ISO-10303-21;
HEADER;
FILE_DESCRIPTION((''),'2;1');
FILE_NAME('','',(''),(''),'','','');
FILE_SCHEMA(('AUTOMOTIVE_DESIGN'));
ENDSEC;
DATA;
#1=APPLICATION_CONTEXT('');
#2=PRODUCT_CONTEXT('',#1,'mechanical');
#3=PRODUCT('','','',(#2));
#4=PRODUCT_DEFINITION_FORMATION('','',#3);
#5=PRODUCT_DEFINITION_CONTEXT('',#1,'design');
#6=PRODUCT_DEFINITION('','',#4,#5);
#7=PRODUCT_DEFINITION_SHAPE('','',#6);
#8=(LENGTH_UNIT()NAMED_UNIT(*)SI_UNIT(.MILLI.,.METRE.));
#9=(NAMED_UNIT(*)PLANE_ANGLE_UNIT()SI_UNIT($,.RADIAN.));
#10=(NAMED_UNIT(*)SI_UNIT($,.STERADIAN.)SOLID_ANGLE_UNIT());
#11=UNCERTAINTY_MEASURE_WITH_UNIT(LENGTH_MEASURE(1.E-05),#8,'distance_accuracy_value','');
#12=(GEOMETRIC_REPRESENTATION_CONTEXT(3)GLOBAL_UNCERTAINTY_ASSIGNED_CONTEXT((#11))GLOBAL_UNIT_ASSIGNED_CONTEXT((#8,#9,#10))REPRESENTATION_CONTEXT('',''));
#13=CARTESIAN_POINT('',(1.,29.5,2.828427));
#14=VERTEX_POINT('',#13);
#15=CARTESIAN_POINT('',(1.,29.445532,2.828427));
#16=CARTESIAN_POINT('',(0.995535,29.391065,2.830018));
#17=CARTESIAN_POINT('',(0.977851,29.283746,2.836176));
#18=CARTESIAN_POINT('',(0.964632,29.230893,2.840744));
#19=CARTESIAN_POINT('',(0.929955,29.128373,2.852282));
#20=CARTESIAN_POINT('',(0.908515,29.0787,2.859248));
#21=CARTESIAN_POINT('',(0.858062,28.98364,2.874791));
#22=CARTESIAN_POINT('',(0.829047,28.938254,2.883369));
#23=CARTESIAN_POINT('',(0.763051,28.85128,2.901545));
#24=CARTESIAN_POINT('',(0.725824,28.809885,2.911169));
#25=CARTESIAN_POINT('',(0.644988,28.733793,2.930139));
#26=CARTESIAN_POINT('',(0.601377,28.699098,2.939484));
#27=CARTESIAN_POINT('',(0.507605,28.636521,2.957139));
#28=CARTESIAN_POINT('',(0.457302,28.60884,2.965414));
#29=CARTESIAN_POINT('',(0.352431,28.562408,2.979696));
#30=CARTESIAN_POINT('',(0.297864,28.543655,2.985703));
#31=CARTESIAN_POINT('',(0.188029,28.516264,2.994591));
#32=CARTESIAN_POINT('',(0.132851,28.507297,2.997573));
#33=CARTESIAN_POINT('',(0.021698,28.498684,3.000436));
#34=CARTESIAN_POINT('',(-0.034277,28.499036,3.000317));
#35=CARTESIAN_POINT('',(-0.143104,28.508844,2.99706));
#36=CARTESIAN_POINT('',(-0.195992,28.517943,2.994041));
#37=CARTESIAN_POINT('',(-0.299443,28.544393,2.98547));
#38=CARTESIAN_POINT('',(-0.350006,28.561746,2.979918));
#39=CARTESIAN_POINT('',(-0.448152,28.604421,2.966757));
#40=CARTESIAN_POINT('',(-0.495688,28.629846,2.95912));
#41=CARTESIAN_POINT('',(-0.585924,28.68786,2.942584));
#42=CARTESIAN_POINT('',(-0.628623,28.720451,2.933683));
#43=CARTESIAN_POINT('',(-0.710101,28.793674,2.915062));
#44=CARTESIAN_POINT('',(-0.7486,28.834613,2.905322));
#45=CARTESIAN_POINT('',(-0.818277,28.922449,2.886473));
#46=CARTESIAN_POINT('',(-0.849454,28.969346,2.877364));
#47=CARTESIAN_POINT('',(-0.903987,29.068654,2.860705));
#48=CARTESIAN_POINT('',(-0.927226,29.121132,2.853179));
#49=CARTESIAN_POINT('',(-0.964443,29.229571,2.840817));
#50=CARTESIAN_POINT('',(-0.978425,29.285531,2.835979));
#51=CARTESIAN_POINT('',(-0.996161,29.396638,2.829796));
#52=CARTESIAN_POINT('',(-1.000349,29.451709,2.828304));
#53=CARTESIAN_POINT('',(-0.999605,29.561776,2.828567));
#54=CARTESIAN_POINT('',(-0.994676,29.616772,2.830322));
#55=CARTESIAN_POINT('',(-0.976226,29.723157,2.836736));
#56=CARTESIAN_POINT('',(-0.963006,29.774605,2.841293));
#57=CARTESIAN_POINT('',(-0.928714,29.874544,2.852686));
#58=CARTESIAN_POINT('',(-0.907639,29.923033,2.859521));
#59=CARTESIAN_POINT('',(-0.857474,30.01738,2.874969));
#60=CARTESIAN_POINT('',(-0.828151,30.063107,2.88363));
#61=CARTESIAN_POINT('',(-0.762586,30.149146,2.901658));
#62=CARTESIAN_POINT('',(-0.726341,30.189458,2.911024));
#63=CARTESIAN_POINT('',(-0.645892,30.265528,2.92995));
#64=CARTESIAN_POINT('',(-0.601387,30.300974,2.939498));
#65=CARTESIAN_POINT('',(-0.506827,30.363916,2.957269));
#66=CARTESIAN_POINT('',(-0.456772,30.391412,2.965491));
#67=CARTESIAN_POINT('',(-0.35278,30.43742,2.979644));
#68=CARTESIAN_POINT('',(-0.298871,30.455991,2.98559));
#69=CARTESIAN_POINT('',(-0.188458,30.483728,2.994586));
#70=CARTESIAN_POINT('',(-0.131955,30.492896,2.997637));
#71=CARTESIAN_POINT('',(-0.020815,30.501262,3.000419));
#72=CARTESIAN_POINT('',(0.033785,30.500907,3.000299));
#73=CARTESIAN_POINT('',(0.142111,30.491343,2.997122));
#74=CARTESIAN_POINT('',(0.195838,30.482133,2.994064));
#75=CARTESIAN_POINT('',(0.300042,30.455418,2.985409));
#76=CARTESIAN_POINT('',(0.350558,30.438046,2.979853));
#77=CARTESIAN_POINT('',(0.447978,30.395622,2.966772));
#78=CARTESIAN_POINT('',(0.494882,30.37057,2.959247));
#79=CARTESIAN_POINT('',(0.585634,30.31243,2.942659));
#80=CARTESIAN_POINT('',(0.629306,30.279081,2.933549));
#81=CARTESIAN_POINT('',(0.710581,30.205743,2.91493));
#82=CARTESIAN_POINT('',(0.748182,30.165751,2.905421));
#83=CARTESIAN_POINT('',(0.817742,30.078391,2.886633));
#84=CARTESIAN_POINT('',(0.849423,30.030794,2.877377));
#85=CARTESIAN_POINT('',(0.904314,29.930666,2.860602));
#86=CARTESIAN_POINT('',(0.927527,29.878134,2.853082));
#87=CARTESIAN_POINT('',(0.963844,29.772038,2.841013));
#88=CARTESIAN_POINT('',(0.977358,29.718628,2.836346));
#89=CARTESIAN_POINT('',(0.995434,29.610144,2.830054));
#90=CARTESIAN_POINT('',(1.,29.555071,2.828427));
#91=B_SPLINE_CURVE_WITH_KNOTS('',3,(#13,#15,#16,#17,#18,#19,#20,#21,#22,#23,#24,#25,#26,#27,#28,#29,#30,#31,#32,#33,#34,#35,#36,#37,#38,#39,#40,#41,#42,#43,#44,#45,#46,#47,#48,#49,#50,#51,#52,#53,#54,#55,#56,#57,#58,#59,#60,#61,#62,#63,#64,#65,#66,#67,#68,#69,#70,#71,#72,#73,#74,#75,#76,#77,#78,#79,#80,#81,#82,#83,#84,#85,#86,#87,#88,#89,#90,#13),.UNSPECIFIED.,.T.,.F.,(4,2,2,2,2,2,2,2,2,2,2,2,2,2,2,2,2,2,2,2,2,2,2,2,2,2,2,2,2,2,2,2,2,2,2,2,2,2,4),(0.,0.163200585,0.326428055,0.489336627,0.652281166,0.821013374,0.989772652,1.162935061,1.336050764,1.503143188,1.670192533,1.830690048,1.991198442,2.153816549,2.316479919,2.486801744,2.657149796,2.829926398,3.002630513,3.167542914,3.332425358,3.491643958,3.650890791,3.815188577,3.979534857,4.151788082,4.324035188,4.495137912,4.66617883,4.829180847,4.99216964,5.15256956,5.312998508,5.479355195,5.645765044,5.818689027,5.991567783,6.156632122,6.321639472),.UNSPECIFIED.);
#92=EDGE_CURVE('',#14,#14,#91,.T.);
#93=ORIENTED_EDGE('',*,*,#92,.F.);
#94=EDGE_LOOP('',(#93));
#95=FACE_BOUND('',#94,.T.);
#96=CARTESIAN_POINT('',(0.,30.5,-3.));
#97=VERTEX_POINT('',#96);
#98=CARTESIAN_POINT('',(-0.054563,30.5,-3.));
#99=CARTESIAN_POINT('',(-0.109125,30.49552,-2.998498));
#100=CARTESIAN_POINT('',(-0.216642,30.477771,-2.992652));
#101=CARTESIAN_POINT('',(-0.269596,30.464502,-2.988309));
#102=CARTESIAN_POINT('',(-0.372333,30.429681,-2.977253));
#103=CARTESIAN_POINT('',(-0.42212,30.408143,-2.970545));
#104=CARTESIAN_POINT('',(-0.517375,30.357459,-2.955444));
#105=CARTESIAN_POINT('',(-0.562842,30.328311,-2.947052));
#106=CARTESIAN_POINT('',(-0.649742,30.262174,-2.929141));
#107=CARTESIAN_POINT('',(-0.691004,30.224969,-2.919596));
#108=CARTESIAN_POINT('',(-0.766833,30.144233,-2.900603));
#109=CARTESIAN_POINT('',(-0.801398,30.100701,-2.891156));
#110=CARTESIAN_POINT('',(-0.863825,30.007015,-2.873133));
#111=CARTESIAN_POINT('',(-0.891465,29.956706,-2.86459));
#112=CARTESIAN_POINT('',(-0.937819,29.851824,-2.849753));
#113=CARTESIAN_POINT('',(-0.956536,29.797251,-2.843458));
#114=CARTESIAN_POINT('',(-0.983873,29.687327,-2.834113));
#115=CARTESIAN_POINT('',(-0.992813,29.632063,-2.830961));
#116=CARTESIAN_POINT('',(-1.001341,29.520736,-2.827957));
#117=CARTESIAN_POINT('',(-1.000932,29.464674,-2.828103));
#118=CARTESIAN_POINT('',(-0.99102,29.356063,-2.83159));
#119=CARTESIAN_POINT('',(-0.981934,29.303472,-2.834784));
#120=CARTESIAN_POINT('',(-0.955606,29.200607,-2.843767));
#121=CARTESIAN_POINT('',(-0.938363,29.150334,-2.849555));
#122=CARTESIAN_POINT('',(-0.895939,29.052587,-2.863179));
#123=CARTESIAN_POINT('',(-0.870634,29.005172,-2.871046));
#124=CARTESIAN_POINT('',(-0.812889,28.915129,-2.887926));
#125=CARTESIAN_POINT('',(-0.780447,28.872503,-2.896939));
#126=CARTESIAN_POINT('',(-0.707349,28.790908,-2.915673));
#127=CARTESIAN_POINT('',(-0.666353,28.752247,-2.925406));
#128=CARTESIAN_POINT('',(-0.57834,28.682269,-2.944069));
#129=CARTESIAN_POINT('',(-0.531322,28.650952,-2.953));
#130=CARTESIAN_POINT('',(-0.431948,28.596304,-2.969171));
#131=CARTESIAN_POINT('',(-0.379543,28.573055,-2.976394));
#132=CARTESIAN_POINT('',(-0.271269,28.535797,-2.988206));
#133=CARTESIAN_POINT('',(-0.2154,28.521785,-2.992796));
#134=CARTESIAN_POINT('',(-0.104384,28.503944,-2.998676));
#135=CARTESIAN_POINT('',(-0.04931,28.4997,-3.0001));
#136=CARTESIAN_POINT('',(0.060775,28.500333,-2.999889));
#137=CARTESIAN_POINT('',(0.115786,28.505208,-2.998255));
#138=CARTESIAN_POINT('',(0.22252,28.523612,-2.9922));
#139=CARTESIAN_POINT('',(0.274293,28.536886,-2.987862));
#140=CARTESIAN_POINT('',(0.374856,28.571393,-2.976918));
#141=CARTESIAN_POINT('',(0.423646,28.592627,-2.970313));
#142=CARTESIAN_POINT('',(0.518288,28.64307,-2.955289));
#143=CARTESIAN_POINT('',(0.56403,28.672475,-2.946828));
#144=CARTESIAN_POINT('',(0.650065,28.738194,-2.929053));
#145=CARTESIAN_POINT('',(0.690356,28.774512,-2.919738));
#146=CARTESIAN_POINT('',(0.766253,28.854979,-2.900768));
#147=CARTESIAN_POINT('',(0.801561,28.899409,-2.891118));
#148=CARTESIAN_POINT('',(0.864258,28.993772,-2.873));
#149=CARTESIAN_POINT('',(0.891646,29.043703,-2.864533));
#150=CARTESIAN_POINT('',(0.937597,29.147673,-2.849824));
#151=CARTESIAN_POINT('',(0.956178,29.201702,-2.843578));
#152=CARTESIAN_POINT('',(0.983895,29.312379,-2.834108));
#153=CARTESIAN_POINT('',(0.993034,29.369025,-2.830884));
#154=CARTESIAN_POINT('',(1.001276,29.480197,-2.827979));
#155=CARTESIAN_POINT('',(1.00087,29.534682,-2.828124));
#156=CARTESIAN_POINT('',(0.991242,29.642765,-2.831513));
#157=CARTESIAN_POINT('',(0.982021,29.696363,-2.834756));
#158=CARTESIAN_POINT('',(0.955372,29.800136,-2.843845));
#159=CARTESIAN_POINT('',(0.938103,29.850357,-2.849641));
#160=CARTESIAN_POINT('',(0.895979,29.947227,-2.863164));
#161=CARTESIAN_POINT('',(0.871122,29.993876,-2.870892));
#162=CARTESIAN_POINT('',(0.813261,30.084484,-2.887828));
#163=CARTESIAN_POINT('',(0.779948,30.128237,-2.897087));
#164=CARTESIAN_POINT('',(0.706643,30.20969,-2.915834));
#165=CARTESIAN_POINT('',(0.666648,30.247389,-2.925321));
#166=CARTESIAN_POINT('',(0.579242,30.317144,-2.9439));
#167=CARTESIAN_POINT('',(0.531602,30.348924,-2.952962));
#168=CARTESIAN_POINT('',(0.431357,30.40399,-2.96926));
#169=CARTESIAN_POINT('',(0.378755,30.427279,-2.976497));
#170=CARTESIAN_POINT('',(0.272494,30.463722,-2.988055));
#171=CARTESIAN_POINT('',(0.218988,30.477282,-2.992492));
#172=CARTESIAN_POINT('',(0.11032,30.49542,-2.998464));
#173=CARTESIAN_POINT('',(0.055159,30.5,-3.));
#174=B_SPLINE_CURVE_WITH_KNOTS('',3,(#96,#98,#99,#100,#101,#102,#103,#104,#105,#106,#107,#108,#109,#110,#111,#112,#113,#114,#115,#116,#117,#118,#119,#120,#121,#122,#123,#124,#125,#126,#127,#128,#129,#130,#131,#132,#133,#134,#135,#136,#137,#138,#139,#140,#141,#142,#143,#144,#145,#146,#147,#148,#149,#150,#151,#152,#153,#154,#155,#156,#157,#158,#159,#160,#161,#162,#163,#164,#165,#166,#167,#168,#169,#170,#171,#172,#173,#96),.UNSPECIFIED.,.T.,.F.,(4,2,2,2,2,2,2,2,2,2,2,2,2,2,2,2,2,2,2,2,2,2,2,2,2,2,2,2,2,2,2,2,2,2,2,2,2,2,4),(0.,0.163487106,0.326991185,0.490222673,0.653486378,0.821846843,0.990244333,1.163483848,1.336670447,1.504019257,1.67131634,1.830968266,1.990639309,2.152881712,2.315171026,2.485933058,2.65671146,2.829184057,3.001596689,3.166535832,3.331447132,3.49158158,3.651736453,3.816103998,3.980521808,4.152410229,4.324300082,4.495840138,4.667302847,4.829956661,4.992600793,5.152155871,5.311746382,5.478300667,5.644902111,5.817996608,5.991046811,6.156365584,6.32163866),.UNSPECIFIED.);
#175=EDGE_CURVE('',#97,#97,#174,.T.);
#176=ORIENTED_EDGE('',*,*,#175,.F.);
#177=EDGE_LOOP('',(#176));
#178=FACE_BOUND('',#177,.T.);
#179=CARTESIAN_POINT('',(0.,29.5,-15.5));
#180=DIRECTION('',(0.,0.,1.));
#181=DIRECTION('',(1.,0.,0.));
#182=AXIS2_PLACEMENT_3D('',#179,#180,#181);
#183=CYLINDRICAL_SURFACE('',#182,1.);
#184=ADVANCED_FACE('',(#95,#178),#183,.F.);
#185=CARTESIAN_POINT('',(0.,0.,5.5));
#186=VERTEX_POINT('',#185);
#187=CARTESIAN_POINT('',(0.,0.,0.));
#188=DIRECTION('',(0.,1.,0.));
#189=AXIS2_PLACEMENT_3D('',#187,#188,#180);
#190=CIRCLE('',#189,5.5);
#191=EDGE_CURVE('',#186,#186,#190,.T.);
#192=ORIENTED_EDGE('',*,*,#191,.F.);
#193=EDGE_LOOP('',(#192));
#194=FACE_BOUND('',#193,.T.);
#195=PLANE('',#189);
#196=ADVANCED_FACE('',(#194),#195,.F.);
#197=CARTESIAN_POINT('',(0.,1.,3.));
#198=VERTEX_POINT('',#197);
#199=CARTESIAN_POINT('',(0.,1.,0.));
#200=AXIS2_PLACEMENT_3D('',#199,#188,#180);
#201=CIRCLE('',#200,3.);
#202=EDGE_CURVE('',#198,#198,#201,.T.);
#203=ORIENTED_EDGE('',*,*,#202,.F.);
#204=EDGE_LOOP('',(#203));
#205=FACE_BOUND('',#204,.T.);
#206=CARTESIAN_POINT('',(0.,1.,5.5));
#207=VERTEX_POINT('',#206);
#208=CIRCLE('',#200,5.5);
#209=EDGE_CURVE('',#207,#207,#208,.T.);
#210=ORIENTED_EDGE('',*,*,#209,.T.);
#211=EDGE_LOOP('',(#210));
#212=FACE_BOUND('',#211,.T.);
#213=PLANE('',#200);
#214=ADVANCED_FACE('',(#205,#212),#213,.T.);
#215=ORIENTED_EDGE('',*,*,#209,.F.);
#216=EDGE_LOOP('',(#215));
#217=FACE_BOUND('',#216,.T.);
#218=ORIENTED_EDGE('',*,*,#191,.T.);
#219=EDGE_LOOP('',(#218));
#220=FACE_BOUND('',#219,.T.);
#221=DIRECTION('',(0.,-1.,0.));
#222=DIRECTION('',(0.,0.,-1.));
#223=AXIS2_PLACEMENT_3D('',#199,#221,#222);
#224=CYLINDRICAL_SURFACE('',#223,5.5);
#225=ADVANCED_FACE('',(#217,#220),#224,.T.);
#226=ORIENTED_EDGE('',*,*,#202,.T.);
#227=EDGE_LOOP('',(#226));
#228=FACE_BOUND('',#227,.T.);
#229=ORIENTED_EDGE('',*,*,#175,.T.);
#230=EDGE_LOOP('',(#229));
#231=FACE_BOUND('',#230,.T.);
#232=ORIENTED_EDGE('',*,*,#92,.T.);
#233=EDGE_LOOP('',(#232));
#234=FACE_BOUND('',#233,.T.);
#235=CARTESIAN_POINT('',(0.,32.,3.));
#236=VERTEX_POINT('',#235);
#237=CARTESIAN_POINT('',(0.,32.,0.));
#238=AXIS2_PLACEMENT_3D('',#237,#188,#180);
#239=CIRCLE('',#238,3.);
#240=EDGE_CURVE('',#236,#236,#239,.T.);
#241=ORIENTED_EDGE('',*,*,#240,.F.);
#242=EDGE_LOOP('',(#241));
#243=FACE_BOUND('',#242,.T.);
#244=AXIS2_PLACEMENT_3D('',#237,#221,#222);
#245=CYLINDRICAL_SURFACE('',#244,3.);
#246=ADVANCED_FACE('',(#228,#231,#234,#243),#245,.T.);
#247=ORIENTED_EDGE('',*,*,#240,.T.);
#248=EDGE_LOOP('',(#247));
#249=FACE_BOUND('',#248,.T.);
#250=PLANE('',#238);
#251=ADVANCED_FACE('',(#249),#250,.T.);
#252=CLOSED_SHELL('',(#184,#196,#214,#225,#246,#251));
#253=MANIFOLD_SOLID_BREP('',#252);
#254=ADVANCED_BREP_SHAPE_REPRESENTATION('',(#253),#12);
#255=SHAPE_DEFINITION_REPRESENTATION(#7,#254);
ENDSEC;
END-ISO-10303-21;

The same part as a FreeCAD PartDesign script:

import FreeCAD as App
import Part
import Sketcher

V = App.Vector
Q = App.Units.Quantity

doc = App.newDocument("Part")
params = doc.addObject("Spreadsheet::Sheet", "Params")
for row, (alias, value) in enumerate([
    ("sketch1_diameter", "11 mm"),
    ("pad1_length", "1 mm"),
    ("sketch2_diameter", "6 mm"),
    ("pad2_length", "31 mm"),
    ("sketch3_diameter", "2 mm"),
    ("pocket1_length", "31 mm"),
], start=1):
    params.set(f"A{row}", alias)
    params.set(f"B{row}", "=" + value)
    params.setAlias(f"B{row}", alias)

body = doc.addObject("PartDesign::Body", "Body")

sketch1 = doc.addObject("Sketcher::SketchObject", "Sketch")
body.addObject(sketch1)
sketch1.AttachmentSupport = (doc.XZ_Plane, [""])
sketch1.MapMode = "FlatFace"
sketch1.addGeometry(Part.Circle(V(0, 0, 0), V(0, 0, 1), 6), False)
sketch1.addConstraint([
    Sketcher.Constraint("Coincident", 0, 3, -1, 1),
    Sketcher.Constraint("Diameter", 0, Q("11 mm")),
])
sketch1.setExpression("Constraints[1]", "Params.sketch1_diameter")
pad1 = doc.addObject("PartDesign::Pad", "Pad")
body.addObject(pad1)
pad1.Profile = sketch1
pad1.setExpression("Length", "Params.pad1_length")
pad1.Reversed = True

sketch2 = doc.addObject("Sketcher::SketchObject", "Sketch001")
body.addObject(sketch2)
sketch2.AttachmentSupport = (doc.XZ_Plane, [""])
sketch2.MapMode = "FlatFace"
sketch2.AttachmentOffset = App.Placement(V(0, 0, -1), App.Rotation())
sketch2.addGeometry(Part.Circle(V(0, 0, 0), V(0, 0, 1), 3), False)
sketch2.addConstraint([
    Sketcher.Constraint("Coincident", 0, 3, -1, 1),
    Sketcher.Constraint("Diameter", 0, Q("6 mm")),
])
sketch2.setExpression("Constraints[1]", "Params.sketch2_diameter")
pad2 = doc.addObject("PartDesign::Pad", "Pad001")
body.addObject(pad2)
pad2.Profile = sketch2
pad2.setExpression("Length", "Params.pad2_length")
pad2.Reversed = True

sketch3 = doc.addObject("Sketcher::SketchObject", "Sketch002")
body.addObject(sketch3)
sketch3.AttachmentSupport = (doc.XY_Plane, [""])
sketch3.MapMode = "FlatFace"
sketch3.addGeometry(Part.Circle(V(0, 29.5, 0), V(0, 0, 1), 1), False)
sketch3.addConstraint([
    Sketcher.Constraint("PointOnObject", 0, 3, -2),
    Sketcher.Constraint("Diameter", 0, Q("2 mm")),
    Sketcher.Constraint("DistanceY", -1, 1, 0, 3, Q("29.5 mm")),
])
sketch3.setExpression("Constraints[1]", "Params.sketch3_diameter")
pocket1 = doc.addObject("PartDesign::Pocket", "Pocket")
body.addObject(pocket1)
pocket1.Profile = sketch3
pocket1.setExpression("Length", "Params.pocket1_length")
pocket1.Midplane = True

doc.recompute()
